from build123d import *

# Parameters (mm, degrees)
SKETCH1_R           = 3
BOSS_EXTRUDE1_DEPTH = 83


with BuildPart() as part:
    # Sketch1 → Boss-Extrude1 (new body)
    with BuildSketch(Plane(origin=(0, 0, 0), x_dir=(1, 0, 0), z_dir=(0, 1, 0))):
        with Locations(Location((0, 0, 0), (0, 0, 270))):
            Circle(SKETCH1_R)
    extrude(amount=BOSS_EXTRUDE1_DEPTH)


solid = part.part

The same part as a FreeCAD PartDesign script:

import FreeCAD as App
import Part
import Sketcher
from FreeCAD import Vector

doc = App.newDocument("Part")
params = doc.addObject("Spreadsheet::Sheet", "Params")
for row, (alias, value) in enumerate([
    ("sketch1_diameter", "6 mm"),
    ("pad1_length", "83 mm"),
], start=1):
    params.set(f"A{row}", alias)
    params.set(f"B{row}", "=" + value)
    params.setAlias(f"B{row}", alias)

body = doc.addObject("PartDesign::Body", "Body")

# Sketch on XZ plane
sketch1 = body.newObject("Sketcher::SketchObject", "Sketch")
sketch1.AttachmentSupport = (doc.getObject("XZ_Plane"), [""])
sketch1.MapMode = "FlatFace"
sketch1.addGeometry(Part.Circle(Vector(0, 0, 0), Vector(0, 0, 1), 3), False)
sketch1.addConstraint(Sketcher.Constraint("Coincident", 0, 3, -1, 1))
sketch1.addConstraint(Sketcher.Constraint("Diameter", 0, 6.0))
sketch1.setExpression("Constraints[1]", "Params.sketch1_diameter")
pad1 = body.newObject("PartDesign::Pad", "Pad")
pad1.Profile = sketch1
pad1.setExpression("Length", "Params.pad1_length")
pad1.Reversed = True

doc.recompute()
